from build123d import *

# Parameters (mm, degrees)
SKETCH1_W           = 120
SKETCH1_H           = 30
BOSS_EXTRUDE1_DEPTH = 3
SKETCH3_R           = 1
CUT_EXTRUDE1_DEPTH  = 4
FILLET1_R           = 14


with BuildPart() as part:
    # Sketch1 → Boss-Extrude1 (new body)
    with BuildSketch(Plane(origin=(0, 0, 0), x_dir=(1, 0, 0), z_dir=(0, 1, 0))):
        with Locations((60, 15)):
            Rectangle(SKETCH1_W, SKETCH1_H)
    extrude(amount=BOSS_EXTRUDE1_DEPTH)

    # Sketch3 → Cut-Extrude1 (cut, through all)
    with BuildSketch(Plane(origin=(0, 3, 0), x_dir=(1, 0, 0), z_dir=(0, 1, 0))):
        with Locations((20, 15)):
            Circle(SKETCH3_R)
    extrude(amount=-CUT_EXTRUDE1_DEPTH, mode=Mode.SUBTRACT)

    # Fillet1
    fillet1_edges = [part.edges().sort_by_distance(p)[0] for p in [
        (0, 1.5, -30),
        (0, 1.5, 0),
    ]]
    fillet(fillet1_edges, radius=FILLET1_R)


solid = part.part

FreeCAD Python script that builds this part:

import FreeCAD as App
import Part
import Sketcher

V = App.Vector


def edges_at(feature, points):
    """Names of the edges that pass closest to the given points."""
    edges = feature.Shape.Edges
    near = lambda p: min(range(len(edges)), key=lambda i: edges[i].distToShape(Part.Vertex(*p))[0])
    return sorted({f"Edge{near(p) + 1}" for p in points})

doc = App.newDocument("Part")
body = doc.addObject("PartDesign::Body", "Body")

# Sketch on XZ plane
sketch1 = body.newObject("Sketcher::SketchObject", "Sketch")
sketch1.AttachmentSupport = (doc.getObject("XZ_Plane"), [""])
sketch1.MapMode = "FlatFace"
sketch1.addGeometry([
    Part.LineSegment(V(0, -30, 0), V(0, 0, 0)),
    Part.LineSegment(V(0, 0, 0), V(120, 0, 0)),
    Part.LineSegment(V(120, 0, 0), V(120, -30, 0)),
    Part.LineSegment(V(120, -30, 0), V(0, -30, 0)),
], False)
sketch1.addConstraint([
    Sketcher.Constraint("Coincident", 0, 2, 1, 1),
    Sketcher.Constraint("Coincident", 1, 2, 2, 1),
    Sketcher.Constraint("Coincident", 2, 2, 3, 1),
    Sketcher.Constraint("Coincident", 3, 2, 0, 1),
    Sketcher.Constraint("Vertical", 0),
    Sketcher.Constraint("Horizontal", 1),
    Sketcher.Constraint("Vertical", 2),
    Sketcher.Constraint("Horizontal", 3),
    Sketcher.Constraint("Coincident", 0, 2, -1, 1),
    Sketcher.Constraint("DistanceX", 1, 1, 1, 2, 120.0),
    Sketcher.Constraint("DistanceY", 0, 1, 0, 2, 30.0),
])
pad1 = body.newObject("PartDesign::Pad", "Pad")
pad1.Profile = sketch1
pad1.Length = 3
pad1.Reversed = True

# Sketch on XZ plane
sketch2 = body.newObject("Sketcher::SketchObject", "Sketch001")
sketch2.AttachmentSupport = (doc.getObject("XZ_Plane"), [""])
sketch2.MapMode = "FlatFace"
sketch2.AttachmentOffset = App.Placement(V(0, 0, -3), App.Rotation())
sketch2.addGeometry(Part.Circle(V(20, -15, 0), V(0, 0, 1), 1), False)
sketch2.addConstraint([
    Sketcher.Constraint("Diameter", 0, 2.0),
    Sketcher.Constraint("DistanceX", -1, 1, 0, 3, 20.0),
    Sketcher.Constraint("DistanceY", 0, 3, -1, 1, 15.0),
])
pocket1 = body.newObject("PartDesign::Pocket", "Pocket")
pocket1.Profile = sketch2
pocket1.Type = "ThroughAll"
pocket1.Reversed = True
doc.recompute()

fillet = body.newObject("PartDesign::Fillet", "Fillet")
fillet.Base = (pocket1, edges_at(pocket1, [(0, 1.5, -30), (0, 1.5, 0)]))
fillet.Radius = 14

doc.recompute()
